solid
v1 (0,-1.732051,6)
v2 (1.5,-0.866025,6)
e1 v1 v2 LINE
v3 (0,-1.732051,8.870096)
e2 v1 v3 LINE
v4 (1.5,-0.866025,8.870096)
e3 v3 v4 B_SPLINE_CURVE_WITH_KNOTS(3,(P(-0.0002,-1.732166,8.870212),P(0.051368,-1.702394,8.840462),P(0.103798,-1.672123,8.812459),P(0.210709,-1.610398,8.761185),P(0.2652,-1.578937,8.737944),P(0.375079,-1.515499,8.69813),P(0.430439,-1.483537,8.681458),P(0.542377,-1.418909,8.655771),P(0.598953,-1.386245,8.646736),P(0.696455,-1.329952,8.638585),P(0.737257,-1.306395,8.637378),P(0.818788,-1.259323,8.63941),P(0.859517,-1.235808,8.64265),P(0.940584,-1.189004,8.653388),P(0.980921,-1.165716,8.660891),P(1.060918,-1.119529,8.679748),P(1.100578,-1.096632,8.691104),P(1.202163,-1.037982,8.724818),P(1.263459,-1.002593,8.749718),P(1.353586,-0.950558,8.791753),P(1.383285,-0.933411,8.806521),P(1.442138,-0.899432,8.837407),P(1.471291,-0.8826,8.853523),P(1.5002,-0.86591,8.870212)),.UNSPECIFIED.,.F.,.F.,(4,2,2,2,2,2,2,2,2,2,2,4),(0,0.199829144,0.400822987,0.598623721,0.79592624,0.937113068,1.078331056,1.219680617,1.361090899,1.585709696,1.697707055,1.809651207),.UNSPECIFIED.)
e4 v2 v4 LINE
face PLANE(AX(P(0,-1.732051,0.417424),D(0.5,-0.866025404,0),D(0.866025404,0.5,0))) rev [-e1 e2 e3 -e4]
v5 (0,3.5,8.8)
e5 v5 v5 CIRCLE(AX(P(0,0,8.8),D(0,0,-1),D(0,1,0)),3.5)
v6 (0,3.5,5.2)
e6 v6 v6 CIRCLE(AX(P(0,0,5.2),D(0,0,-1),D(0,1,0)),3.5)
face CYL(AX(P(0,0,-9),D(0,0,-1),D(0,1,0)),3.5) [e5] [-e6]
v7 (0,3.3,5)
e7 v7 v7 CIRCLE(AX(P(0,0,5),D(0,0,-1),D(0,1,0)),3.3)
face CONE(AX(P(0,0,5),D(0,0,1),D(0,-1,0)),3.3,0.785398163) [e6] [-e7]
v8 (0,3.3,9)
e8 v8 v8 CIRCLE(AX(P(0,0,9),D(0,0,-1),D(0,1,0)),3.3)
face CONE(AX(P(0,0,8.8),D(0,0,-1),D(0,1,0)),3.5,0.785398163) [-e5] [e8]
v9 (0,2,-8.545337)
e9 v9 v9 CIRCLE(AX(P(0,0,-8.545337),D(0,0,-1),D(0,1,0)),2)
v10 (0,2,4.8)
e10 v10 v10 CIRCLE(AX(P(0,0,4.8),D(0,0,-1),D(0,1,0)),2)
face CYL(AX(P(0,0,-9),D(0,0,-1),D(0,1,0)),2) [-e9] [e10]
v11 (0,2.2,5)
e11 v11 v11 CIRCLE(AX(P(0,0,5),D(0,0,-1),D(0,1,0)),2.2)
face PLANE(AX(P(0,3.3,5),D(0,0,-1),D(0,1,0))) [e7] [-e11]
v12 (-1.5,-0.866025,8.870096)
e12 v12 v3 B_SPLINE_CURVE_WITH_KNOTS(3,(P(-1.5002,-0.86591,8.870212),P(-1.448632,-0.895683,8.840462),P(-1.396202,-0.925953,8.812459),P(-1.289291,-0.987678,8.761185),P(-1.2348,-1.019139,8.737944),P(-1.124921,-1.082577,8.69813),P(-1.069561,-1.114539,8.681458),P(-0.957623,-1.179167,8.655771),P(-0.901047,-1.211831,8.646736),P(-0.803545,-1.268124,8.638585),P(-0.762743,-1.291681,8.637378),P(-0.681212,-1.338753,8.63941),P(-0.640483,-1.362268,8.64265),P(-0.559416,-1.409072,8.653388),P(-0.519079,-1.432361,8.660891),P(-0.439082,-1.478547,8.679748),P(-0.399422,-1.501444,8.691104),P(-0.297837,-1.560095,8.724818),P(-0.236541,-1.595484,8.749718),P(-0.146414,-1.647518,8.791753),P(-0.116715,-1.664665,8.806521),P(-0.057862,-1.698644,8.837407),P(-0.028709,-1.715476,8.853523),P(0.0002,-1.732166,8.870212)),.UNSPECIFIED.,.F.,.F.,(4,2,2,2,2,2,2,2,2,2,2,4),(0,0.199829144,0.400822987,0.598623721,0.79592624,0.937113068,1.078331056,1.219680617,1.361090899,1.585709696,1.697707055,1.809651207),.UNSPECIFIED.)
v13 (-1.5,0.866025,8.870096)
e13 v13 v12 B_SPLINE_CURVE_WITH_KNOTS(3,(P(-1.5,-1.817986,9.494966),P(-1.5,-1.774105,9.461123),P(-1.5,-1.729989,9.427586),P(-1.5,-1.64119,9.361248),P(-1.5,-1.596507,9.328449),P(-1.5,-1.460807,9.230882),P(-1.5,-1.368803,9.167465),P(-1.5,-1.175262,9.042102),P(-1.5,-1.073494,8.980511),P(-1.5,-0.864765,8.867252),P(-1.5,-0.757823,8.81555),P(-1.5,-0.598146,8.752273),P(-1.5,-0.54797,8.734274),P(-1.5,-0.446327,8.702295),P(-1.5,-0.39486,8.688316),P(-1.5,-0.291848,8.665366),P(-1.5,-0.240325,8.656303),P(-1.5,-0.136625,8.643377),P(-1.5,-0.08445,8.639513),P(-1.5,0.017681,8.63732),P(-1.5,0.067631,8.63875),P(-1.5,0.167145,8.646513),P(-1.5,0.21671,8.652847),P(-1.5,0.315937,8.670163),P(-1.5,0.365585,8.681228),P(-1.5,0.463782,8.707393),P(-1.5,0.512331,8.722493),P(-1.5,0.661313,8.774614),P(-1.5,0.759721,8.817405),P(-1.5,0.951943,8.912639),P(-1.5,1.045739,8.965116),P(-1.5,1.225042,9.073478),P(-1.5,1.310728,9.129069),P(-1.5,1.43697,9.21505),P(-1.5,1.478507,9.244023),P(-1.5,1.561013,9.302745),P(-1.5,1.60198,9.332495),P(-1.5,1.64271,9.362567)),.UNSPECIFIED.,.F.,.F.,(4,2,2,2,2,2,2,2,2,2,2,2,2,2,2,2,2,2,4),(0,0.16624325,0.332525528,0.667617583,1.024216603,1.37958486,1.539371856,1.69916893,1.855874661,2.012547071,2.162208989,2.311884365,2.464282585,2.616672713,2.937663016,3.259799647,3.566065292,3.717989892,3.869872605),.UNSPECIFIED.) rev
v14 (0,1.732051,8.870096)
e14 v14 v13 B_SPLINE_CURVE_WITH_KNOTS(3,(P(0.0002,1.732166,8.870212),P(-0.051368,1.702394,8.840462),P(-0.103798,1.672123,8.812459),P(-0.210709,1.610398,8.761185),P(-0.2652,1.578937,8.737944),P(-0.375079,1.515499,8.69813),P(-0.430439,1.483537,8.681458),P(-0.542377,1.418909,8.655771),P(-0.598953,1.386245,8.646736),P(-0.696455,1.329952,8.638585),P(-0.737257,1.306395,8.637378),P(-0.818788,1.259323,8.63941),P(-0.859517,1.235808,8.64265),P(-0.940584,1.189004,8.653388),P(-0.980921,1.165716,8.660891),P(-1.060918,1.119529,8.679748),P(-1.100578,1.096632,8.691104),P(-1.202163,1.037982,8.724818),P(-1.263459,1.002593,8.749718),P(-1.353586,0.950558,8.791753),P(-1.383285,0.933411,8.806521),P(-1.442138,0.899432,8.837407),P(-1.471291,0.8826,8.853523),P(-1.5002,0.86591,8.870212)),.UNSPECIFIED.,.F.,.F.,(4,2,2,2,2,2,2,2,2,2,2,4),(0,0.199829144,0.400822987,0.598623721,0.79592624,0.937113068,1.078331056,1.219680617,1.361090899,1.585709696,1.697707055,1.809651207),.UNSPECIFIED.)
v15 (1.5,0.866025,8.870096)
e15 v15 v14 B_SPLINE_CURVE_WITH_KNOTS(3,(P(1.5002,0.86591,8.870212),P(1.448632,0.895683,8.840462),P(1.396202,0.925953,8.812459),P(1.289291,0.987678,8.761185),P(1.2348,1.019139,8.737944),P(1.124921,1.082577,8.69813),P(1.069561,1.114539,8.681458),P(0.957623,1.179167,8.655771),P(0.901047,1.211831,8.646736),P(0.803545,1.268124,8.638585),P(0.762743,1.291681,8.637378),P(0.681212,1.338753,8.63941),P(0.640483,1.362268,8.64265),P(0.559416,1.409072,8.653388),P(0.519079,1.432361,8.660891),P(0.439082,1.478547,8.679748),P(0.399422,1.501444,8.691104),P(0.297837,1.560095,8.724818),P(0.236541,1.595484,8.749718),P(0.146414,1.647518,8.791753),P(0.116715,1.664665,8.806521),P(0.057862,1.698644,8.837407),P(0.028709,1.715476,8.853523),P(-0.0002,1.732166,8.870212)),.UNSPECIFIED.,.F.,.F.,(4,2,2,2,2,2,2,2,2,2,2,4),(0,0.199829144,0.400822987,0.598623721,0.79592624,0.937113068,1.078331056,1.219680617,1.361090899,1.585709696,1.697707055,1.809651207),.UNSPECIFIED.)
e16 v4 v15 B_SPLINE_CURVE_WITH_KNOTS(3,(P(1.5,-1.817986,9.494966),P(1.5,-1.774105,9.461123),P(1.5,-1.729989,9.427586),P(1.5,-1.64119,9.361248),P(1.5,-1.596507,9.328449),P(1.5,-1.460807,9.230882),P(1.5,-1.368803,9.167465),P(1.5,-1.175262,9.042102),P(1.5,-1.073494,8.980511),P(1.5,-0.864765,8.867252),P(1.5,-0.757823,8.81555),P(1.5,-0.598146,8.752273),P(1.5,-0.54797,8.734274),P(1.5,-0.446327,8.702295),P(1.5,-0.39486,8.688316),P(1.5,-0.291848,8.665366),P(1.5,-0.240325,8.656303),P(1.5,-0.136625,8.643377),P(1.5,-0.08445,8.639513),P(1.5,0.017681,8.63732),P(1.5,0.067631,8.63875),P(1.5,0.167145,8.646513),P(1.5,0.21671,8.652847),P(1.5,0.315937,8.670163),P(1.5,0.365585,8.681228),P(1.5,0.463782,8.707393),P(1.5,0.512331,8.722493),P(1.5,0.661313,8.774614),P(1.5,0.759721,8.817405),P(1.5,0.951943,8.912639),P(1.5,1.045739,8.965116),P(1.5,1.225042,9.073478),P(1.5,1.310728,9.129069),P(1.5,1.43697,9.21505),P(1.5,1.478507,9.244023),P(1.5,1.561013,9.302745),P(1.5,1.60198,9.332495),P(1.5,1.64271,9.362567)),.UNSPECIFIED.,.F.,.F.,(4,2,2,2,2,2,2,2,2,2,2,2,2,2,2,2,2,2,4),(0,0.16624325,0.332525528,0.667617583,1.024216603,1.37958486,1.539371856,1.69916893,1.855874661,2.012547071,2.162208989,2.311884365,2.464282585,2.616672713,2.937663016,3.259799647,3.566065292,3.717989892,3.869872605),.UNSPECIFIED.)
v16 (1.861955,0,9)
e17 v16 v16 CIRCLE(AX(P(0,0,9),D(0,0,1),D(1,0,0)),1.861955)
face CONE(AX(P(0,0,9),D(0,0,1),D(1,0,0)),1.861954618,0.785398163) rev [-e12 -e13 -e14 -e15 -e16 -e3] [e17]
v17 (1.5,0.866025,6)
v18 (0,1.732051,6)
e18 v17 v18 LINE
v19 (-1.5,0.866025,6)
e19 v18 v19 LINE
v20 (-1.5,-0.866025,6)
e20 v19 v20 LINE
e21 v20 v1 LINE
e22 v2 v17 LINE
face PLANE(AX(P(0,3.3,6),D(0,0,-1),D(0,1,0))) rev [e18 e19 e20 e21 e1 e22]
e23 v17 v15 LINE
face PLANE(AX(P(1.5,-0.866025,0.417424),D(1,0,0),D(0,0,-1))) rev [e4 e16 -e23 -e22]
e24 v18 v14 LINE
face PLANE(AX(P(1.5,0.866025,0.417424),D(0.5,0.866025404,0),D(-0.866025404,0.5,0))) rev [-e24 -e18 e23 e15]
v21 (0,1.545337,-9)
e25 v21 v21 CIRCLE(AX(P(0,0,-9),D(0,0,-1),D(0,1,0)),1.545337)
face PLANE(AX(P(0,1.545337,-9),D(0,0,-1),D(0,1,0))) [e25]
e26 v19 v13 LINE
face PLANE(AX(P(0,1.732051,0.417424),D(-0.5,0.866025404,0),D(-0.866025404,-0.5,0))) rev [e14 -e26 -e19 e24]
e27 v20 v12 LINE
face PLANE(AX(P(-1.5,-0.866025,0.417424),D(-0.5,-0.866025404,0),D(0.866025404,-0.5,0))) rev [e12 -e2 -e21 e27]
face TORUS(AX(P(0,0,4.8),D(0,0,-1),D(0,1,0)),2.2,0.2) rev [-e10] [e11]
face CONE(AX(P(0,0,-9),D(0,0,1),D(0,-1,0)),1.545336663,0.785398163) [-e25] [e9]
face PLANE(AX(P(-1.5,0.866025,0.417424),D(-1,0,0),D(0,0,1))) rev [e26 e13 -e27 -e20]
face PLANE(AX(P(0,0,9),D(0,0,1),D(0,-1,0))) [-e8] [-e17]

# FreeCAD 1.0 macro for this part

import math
import FreeCAD as App
import Part
import Sketcher

V = App.Vector
Q = App.Units.Quantity


def add_polygon(sketch, points):
    """Adds a closed chain of lines whose ends are joined by coincident constraints."""
    first, n = sketch.GeometryCount, len(points)
    for a, b in zip(points, points[1:] + points[:1]):
        sketch.addGeometry(Part.LineSegment(App.Vector(*a, 0), App.Vector(*b, 0)), False)
    for i in range(n):
        sketch.addConstraint(Sketcher.Constraint("Coincident", first + i, 2, first + (i + 1) % n, 1))

doc = App.newDocument("Part")
params = doc.addObject("Spreadsheet::Sheet", "Params")
for row, (alias, value) in enumerate([
    ("sketch1_radius", "0.2 mm"),
    ("sketch1_height", "18 mm"),
    ("sketch1_width", "3.3 mm"),
    ("sketch1_width2", "1.1 mm"),
    ("sketch1_height2", "3.6 mm"),
    ("revolution_angle", "360 deg"),
    ("pocket1_length", "3 mm"),
    ("groove_angle", "360 deg"),
], start=1):
    params.set(f"A{row}", alias)
    params.set(f"B{row}", "=" + value)
    params.setAlias(f"B{row}", alias)

body = doc.addObject("PartDesign::Body", "Body")

# Sketch on YZ plane
sketch1 = body.newObject("Sketcher::SketchObject", "Sketch")
sketch1.AttachmentSupport = (doc.getObject("YZ_Plane"), [""])
sketch1.MapMode = "FlatFace"
sketch1.addGeometry([
    Part.LineSegment(V(3.3, 9, 0), V(0, 9, 0)),  # 0
    Part.LineSegment(V(0, 9, 0), V(0, -9, 0)),  # 1
    Part.LineSegment(V(0, -9, 0), V(1.55, -9, 0)),  # 2
    Part.LineSegment(V(1.55, -9, 0), V(2, -8.55, 0)),  # 3
    Part.LineSegment(V(2, -8.55, 0), V(2, 4.8, 0)),  # 4
    Part.ArcOfCircle(Part.Circle(V(2.2, 4.8, 0), V(0, 0, 1), 0.2), math.radians(90), math.radians(180)),  # 5
    Part.LineSegment(V(2.2, 5, 0), V(3.3, 5, 0)),  # 6
    Part.LineSegment(V(3.3, 5, 0), V(3.5, 5.2, 0)),  # 7
    Part.LineSegment(V(3.5, 5.2, 0), V(3.5, 8.8, 0)),  # 8
    Part.LineSegment(V(3.5, 8.8, 0), V(3.3, 9, 0)),  # 9
], False)
sketch1.addConstraint([
    Sketcher.Constraint("Coincident", 0, 2, 1, 1),
    Sketcher.Constraint("Coincident", 1, 2, 2, 1),
    Sketcher.Constraint("Coincident", 2, 2, 3, 1),
    Sketcher.Constraint("Coincident", 3, 2, 4, 1),
    Sketcher.Constraint("Tangent", 4, 2, 5, 2),
    Sketcher.Constraint("Tangent", 5, 1, 6, 1),
    Sketcher.Constraint("Coincident", 6, 2, 7, 1),
    Sketcher.Constraint("Coincident", 7, 2, 8, 1),
    Sketcher.Constraint("Coincident", 8, 2, 9, 1),
    Sketcher.Constraint("Coincident", 9, 2, 0, 1),
    Sketcher.Constraint("Horizontal", 0),
    Sketcher.Constraint("Vertical", 1),
    Sketcher.Constraint("Horizontal", 2),
    Sketcher.Constraint("Vertical", 4),
    Sketcher.Constraint("Horizontal", 6),
    Sketcher.Constraint("Vertical", 8),
    Sketcher.Constraint("Symmetric", 0, 2, 1, 2, -1, 1),
    Sketcher.Constraint("Parallel", 3, 7),
    Sketcher.Constraint("Perpendicular", 7, 9),
    Sketcher.Constraint("Vertical", 6, 2, 9, 2),
    Sketcher.Constraint("Equal", 7, 9),
    Sketcher.Constraint("Radius", 5, Q("0.2 mm")),
    Sketcher.Constraint("DistanceY", 1, 2, 1, 1, Q("18 mm")),
    Sketcher.Constraint("DistanceX", 0, 2, 0, 1, Q("3.3 mm")),
    Sketcher.Constraint("DistanceX", 6, 1, 6, 2, Q("1.1 mm")),
    Sketcher.Constraint("DistanceY", 8, 1, 8, 2, Q("3.6 mm")),
    Sketcher.Constraint("DistanceY", -1, 1, 5, 1, Q("5 mm")),
    Sketcher.Constraint("Distance", 3, Q("0.642991 mm")),
])
sketch1.setExpression("Constraints[21]", "Params.sketch1_radius")
sketch1.setExpression("Constraints[22]", "Params.sketch1_height")
sketch1.setExpression("Constraints[23]", "Params.sketch1_width")
sketch1.setExpression("Constraints[24]", "Params.sketch1_width2")
sketch1.setExpression("Constraints[25]", "Params.sketch1_height2")
revolution = body.newObject("PartDesign::Revolution", "Revolution")
revolution.Profile = sketch1
revolution.ReferenceAxis = (sketch1, ["V_Axis"])
revolution.setExpression("Angle", "Params.revolution_angle")

# Sketch on XY plane
sketch2 = body.newObject("Sketcher::SketchObject", "Sketch001")
sketch2.AttachmentSupport = (doc.getObject("XY_Plane"), [""])
sketch2.MapMode = "FlatFace"
sketch2.AttachmentOffset = App.Placement(V(0, 0, 9), App.Rotation())
add_polygon(sketch2, [(1.5, -0.9), (1.5, 0.9), (0, 1.7), (-1.5, 0.9), (-1.5, -0.9), (0, -1.7)])  # lines 0-5
sketch2.addConstraint([
    Sketcher.Constraint("Vertical", 0),
    Sketcher.Constraint("Vertical", 3),
    Sketcher.Constraint("Symmetric", 0, 2, 3, 2, -1, 1),
    Sketcher.Constraint("Symmetric", 1, 2, 4, 2, -1, 1),
    Sketcher.Constraint("PointOnObject", 1, 2, -2),
    Sketcher.Constraint("Parallel", 2, 5),
    Sketcher.Constraint("Horizontal", 0, 2, 2, 2),
    Sketcher.Constraint("Angle", 1, Q("150 deg")),
    Sketcher.Constraint("DistanceX", 2, 2, 0, 2, Q("3 mm")),
    Sketcher.Constraint("DistanceY", 0, 1, 0, 2, Q("1.732051 mm")),
])
pocket1 = body.newObject("PartDesign::Pocket", "Pocket")
pocket1.Profile = sketch2
pocket1.setExpression("Length", "Params.pocket1_length")

# Sketch on YZ plane
sketch3 = body.newObject("Sketcher::SketchObject", "Sketch002")
sketch3.AttachmentSupport = (doc.getObject("YZ_Plane"), [""])
sketch3.MapMode = "FlatFace"
add_polygon(sketch3, [(0, 9), (-1.9, 9), (0, 7.1)])  # lines 0-2
sketch3.addConstraint([
    Sketcher.Constraint("Horizontal", 0),
    Sketcher.Constraint("Vertical", 2),
    Sketcher.Constraint("PointOnObject", 1, 2, -2),
    Sketcher.Constraint("Equal", 0, 2),
    Sketcher.Constraint("DistanceY", -1, 1, 0, 2, Q("9 mm")),
    Sketcher.Constraint("Distance", 1, Q("2.633201 mm")),
])
groove = body.newObject("PartDesign::Groove", "Groove")
groove.Profile = sketch3
groove.ReferenceAxis = (sketch3, ["V_Axis"])
groove.setExpression("Angle", "Params.groove_angle")

doc.recompute()
